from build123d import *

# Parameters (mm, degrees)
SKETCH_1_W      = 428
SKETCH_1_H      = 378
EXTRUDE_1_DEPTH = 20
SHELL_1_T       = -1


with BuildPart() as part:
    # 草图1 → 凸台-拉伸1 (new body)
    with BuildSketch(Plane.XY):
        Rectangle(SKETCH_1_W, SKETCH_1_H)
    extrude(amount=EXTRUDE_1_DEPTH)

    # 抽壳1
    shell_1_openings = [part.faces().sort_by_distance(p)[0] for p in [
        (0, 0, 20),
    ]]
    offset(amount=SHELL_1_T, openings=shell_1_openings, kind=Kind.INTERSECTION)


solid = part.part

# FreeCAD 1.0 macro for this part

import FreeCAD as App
import Part
import Sketcher
from FreeCAD import Vector
Q = App.Units.Quantity


def faces_at(feature, points):
    """Names of the faces that lie closest to the given points."""
    faces = feature.Shape.Faces
    near = lambda p: min(range(len(faces)), key=lambda i: faces[i].distToShape(Part.Vertex(*p))[0])
    return sorted({f"Face{near(p) + 1}" for p in points})


def add_polygon(sketch, points):
    """Adds a closed chain of lines whose ends are joined by coincident constraints."""
    first, n = sketch.GeometryCount, len(points)
    for a, b in zip(points, points[1:] + points[:1]):
        sketch.addGeometry(Part.LineSegment(App.Vector(*a, 0), App.Vector(*b, 0)), False)
    for i in range(n):
        sketch.addConstraint(Sketcher.Constraint("Coincident", first + i, 2, first + (i + 1) % n, 1))

doc = App.newDocument("Part")
body = doc.addObject("PartDesign::Body", "Body")

# Sketch on XY plane
sketch1 = body.newObject("Sketcher::SketchObject", "Sketch")
sketch1.AttachmentSupport = (doc.getObject("XY_Plane"), [""])
sketch1.MapMode = "FlatFace"
add_polygon(sketch1, [(-214, 189), (-214, -189), (214, -189), (214, 189)])  # lines 0-3
sketch1.addConstraint([
    Sketcher.Constraint("Vertical", 0),
    Sketcher.Constraint("Horizontal", 1),
    Sketcher.Constraint("Vertical", 2),
    Sketcher.Constraint("Horizontal", 3),
    Sketcher.Constraint("Symmetric", 0, 2, 2, 2, -1, 1),
    Sketcher.Constraint("DistanceX", 1, 1, 1, 2, Q("428 mm")),
    Sketcher.Constraint("DistanceY", 0, 2, 0, 1, Q("378 mm")),
])
pad1 = body.newObject("PartDesign::Pad", "Pad")
pad1.Profile = sketch1
pad1.Length = 20
doc.recompute()

thickness = body.newObject("PartDesign::Thickness", "Thickness")
thickness.Base = (pad1, faces_at(pad1, [(0, 0, 20)]))
thickness.Value = 1
thickness.Reversed = True
thickness.Join = "Intersection"

doc.recompute()
